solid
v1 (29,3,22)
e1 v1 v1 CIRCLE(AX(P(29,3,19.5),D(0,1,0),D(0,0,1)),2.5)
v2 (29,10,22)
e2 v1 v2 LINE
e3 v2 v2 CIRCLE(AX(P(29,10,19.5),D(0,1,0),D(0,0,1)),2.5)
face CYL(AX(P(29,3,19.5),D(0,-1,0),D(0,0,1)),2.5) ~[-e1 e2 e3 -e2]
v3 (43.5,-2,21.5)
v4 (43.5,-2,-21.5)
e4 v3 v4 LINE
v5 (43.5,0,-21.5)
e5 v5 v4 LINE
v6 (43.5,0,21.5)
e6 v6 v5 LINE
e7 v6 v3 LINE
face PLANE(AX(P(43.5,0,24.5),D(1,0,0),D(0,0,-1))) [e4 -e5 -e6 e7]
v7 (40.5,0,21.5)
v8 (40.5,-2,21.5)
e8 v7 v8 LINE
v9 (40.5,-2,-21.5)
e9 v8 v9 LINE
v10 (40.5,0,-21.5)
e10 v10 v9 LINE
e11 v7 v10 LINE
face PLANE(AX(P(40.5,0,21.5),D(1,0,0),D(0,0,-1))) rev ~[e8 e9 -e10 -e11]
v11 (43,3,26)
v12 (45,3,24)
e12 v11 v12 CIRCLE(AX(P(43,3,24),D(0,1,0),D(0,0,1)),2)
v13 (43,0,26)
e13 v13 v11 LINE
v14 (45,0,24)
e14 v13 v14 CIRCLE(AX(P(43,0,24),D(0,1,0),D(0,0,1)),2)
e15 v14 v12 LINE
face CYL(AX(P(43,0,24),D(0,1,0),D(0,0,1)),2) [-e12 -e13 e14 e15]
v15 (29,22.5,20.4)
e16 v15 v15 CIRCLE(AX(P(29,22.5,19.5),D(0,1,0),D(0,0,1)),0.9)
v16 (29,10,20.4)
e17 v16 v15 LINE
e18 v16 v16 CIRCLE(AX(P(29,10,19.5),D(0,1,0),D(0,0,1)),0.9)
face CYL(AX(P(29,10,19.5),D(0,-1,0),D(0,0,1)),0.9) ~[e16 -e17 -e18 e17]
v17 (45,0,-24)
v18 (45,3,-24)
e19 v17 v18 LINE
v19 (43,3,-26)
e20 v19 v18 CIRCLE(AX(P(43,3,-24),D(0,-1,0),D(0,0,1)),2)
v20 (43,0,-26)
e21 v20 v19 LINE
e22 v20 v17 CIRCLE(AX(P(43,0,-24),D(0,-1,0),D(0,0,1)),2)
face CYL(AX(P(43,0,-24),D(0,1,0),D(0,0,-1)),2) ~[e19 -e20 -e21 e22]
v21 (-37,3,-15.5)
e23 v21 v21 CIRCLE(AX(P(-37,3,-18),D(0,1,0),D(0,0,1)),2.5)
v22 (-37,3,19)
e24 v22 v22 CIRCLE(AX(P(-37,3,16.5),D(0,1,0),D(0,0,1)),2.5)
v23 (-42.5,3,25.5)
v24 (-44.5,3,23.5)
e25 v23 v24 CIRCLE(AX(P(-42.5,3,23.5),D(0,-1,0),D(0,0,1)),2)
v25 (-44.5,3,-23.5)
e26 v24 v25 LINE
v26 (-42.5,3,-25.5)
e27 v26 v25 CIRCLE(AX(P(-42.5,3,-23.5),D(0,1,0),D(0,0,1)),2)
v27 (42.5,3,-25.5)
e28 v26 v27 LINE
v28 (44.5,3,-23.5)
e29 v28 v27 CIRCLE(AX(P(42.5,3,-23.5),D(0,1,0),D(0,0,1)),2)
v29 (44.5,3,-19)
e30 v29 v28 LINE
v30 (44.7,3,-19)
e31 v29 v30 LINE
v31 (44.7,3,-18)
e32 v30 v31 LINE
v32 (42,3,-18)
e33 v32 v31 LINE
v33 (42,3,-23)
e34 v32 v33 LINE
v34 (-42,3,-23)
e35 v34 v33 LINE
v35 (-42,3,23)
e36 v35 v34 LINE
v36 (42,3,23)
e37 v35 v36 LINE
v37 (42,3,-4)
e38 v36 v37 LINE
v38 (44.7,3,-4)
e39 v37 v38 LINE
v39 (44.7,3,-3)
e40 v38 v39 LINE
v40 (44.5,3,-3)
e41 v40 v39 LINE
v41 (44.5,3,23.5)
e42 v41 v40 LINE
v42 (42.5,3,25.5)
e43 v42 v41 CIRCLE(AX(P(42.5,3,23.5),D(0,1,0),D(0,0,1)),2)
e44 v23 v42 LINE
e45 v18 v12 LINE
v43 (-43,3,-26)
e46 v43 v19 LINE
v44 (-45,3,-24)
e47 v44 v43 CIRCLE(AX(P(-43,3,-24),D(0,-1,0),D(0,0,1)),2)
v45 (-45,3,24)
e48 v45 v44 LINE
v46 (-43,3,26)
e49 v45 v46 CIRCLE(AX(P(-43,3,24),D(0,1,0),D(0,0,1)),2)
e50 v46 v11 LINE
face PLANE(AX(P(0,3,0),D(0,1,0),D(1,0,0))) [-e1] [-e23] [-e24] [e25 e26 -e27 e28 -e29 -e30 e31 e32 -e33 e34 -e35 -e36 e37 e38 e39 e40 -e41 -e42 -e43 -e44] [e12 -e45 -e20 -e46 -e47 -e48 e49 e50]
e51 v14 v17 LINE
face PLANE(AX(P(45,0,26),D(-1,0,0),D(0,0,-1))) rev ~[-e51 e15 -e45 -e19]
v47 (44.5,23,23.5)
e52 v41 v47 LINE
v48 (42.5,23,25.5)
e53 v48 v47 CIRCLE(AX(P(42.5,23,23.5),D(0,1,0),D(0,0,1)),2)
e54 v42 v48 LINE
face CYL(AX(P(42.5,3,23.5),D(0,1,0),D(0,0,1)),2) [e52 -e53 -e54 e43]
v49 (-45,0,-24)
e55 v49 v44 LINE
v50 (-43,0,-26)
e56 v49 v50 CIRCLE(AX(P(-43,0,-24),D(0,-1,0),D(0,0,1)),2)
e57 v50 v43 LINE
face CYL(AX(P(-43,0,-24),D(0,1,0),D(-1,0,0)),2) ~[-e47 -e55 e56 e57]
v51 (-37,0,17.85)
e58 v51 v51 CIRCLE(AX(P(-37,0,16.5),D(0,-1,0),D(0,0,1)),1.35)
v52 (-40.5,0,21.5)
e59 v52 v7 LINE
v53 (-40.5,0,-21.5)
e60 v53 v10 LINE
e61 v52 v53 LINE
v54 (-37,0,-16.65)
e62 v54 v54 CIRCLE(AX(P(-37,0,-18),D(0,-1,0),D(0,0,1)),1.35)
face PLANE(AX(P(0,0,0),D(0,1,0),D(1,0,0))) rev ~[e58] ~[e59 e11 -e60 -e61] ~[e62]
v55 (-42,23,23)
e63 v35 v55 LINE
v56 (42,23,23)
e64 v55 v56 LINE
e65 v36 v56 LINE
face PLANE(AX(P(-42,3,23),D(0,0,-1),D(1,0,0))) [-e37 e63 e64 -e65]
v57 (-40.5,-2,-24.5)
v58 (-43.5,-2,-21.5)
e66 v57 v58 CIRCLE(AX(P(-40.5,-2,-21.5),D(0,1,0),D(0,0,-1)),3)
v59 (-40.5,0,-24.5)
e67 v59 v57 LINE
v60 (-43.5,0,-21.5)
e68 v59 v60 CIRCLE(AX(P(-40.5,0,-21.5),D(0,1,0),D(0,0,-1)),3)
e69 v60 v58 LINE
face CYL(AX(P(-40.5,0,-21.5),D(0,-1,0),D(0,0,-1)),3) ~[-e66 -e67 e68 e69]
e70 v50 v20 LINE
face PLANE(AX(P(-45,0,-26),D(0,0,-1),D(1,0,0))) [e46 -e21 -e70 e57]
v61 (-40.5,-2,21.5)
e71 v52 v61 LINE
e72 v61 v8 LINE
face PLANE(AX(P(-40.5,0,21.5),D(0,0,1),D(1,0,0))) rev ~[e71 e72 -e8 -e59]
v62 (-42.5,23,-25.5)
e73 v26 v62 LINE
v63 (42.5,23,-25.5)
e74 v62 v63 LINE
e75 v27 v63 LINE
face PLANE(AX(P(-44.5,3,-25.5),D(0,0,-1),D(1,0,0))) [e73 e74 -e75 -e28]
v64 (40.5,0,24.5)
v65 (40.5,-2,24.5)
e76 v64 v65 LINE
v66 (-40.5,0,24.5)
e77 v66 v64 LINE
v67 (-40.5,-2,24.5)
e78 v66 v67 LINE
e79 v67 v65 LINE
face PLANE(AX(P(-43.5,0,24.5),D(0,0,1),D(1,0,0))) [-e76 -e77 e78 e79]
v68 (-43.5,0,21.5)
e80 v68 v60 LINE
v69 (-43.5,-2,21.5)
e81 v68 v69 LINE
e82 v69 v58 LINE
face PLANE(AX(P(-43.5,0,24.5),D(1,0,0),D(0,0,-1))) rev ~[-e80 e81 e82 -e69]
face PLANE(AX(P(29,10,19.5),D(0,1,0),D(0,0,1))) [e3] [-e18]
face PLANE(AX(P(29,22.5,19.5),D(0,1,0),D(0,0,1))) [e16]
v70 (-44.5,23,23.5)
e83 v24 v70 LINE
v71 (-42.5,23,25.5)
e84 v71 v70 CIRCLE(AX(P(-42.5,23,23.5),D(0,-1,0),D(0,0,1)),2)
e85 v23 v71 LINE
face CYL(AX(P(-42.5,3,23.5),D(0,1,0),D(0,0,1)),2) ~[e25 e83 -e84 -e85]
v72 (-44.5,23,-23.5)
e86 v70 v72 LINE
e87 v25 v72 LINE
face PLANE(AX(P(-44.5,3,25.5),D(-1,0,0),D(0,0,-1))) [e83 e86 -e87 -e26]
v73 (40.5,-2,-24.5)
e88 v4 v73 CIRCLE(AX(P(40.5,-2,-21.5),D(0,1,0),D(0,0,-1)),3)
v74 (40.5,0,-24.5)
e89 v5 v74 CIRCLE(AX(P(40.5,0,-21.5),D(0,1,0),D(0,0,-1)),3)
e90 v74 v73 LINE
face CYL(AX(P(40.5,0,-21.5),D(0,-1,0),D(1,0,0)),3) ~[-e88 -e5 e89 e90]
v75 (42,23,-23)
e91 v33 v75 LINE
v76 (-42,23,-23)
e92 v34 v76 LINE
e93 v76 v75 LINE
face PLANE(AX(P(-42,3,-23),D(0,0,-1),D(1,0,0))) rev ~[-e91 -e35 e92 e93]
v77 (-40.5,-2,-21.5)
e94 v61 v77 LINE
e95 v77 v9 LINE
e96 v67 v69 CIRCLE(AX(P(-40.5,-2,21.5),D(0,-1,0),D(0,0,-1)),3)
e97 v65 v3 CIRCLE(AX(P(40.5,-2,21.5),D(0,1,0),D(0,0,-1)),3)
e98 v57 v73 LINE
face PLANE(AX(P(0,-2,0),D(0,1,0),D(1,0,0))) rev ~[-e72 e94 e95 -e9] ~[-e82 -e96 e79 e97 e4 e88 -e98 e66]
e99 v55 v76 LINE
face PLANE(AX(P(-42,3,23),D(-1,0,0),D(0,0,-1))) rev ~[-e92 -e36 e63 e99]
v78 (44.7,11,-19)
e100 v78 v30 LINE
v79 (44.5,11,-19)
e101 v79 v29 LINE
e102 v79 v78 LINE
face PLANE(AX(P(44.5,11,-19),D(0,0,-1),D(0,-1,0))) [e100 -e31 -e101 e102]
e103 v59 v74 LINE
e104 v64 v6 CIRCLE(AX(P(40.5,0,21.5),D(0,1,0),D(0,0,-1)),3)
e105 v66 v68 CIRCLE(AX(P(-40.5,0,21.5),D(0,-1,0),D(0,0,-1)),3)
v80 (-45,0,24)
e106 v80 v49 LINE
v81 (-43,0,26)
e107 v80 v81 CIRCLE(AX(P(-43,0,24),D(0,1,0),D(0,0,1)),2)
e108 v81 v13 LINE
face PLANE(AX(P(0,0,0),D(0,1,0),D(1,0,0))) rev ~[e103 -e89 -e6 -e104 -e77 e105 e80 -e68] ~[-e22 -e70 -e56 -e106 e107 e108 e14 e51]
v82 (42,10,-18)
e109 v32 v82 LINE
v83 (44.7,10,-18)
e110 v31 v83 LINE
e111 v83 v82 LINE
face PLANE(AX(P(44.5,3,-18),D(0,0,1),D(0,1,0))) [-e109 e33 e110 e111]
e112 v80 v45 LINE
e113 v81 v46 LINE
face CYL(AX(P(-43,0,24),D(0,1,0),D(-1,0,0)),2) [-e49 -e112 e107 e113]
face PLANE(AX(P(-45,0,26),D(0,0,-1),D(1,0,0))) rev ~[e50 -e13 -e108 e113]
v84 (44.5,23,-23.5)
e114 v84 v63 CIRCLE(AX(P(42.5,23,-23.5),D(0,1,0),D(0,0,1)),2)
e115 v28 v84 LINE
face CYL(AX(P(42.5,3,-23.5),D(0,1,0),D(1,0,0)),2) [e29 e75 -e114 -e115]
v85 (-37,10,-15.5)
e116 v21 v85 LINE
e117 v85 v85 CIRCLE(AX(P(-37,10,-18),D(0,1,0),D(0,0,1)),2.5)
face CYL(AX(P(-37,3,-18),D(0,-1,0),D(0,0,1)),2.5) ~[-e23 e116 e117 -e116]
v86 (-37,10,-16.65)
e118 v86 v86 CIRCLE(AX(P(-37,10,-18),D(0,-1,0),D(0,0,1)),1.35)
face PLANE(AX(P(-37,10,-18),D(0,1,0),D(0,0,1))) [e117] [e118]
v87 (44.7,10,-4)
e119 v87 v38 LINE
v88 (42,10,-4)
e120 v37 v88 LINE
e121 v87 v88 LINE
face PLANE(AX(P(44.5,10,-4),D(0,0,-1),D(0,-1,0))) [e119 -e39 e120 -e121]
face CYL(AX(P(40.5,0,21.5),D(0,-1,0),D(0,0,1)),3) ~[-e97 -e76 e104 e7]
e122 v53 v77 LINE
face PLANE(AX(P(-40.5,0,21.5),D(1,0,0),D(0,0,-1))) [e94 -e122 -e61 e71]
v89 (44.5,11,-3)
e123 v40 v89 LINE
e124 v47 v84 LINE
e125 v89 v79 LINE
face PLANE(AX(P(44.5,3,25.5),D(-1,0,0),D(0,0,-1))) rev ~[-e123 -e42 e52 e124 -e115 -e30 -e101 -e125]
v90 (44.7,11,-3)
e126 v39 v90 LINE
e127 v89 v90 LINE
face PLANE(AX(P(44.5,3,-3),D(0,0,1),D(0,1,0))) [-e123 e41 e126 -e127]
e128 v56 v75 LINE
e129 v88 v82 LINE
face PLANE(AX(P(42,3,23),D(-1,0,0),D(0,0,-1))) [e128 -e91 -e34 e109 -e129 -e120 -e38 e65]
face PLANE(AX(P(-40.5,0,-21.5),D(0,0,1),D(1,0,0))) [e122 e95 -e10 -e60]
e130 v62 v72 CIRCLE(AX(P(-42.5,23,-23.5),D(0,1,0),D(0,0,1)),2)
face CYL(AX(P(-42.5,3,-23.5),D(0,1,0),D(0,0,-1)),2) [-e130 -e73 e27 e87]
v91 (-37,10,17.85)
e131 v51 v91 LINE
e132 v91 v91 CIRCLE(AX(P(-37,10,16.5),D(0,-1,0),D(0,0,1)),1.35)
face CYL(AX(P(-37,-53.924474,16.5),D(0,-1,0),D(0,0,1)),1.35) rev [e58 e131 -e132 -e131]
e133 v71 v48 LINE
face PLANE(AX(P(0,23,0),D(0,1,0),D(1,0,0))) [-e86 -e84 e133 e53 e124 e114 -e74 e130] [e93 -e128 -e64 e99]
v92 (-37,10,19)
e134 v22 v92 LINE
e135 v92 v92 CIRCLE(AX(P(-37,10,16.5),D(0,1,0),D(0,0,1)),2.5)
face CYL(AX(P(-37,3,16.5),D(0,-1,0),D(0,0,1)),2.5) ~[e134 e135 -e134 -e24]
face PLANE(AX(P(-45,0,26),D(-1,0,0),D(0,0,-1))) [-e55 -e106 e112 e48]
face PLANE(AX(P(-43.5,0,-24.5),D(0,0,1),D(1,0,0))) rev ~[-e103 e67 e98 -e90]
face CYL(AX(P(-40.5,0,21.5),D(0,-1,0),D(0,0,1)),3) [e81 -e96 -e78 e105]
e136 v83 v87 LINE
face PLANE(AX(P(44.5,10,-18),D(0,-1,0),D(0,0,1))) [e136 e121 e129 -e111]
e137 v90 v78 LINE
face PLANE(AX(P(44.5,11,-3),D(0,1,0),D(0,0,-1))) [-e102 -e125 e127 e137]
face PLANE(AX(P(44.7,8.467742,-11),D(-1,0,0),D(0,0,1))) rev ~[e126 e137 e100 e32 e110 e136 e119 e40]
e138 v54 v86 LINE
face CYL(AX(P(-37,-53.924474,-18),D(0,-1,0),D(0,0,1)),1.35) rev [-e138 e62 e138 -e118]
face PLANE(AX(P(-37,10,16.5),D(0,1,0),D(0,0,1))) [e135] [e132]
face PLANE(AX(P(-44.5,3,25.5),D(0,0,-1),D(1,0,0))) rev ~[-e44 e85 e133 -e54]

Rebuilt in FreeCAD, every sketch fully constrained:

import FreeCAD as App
import Part
import Sketcher
from FreeCAD import Vector
Q = App.Units.Quantity


def edges_at(feature, points):
    """Names of the edges that pass closest to the given points."""
    edges = feature.Shape.Edges
    near = lambda p: min(range(len(edges)), key=lambda i: edges[i].distToShape(Part.Vertex(*p))[0])
    return sorted({f"Edge{near(p) + 1}" for p in points})


def add_polygon(sketch, points):
    """Adds a closed chain of lines whose ends are joined by coincident constraints."""
    first, n = sketch.GeometryCount, len(points)
    for a, b in zip(points, points[1:] + points[:1]):
        sketch.addGeometry(Part.LineSegment(App.Vector(*a, 0), App.Vector(*b, 0)), False)
    for i in range(n):
        sketch.addConstraint(Sketcher.Constraint("Coincident", first + i, 2, first + (i + 1) % n, 1))

doc = App.newDocument("Part")
body = doc.addObject("PartDesign::Body", "Body")

sketch1 = body.newObject("Sketcher::SketchObject", "Sketch")
sketch1.AttachmentSupport = (doc.getObject("XZ_Plane"), [""])
sketch1.MapMode = "FlatFace"
add_polygon(sketch1, [(-45, -26), (-45, 26), (45, 26), (45, -26)])
sketch1.addConstraint([
    Sketcher.Constraint("Vertical", 0),
    Sketcher.Constraint("Horizontal", 1),
    Sketcher.Constraint("Vertical", 2),
    Sketcher.Constraint("Horizontal", 3),
    Sketcher.Constraint("Symmetric", 0, 2, 2, 2, -1, 1),
    Sketcher.Constraint("DistanceX", 1, 1, 1, 2, Q("90 mm")),
    Sketcher.Constraint("DistanceY", 0, 1, 0, 2, Q("52 mm")),
])
pad1 = body.newObject("PartDesign::Pad", "Pad")
pad1.Profile = sketch1
pad1.Length = 3
pad1.Reversed = True

sketch2 = body.newObject("Sketcher::SketchObject", "Sketch001")
sketch2.AttachmentSupport = (doc.getObject("XZ_Plane"), [""])
sketch2.MapMode = "FlatFace"
sketch2.AttachmentOffset = App.Placement(Vector(0, 0, -3), App.Rotation())
sketch2.addGeometry([
    Part.Circle(Vector(29, 19.5, 0), Vector(0, 0, 1), 2.5),
    Part.Circle(Vector(-37, -18, 0), Vector(0, 0, 1), 2.5),
    Part.Circle(Vector(-37, 16.5, 0), Vector(0, 0, 1), 2.5),
], False)
sketch2.addConstraint([
    Sketcher.Constraint("Equal", 0, 1),
    Sketcher.Constraint("Equal", 1, 2),
    Sketcher.Constraint("Vertical", 1, 3, 2, 3),
    Sketcher.Constraint("Diameter", 0, Q("5 mm")),
    Sketcher.Constraint("DistanceX", -1, 1, 0, 3, Q("29 mm")),
    Sketcher.Constraint("DistanceX", 1, 3, -1, 1, Q("37 mm")),
    Sketcher.Constraint("DistanceY", 1, 3, -1, 1, Q("18 mm")),
    Sketcher.Constraint("DistanceY", 2, 3, 0, 3, Q("3 mm")),
    Sketcher.Constraint("DistanceY", -1, 1, 0, 3, Q("19.5 mm")),
])
pad2 = body.newObject("PartDesign::Pad", "Pad001")
pad2.Profile = sketch2
pad2.Length = 7
pad2.Reversed = True

sketch3 = body.newObject("Sketcher::SketchObject", "Sketch002")
sketch3.AttachmentSupport = (doc.getObject("XZ_Plane"), [""])
sketch3.MapMode = "FlatFace"
sketch3.AttachmentOffset = App.Placement(Vector(0, 0, -10), App.Rotation())
sketch3.addGeometry([
    Part.Circle(Vector(-37, -18, 0), Vector(0, 0, 1), 1.4),
    Part.Circle(Vector(-37, 16.5, 0), Vector(0, 0, 1), 1.4),
], False)
sketch3.addConstraint([
    Sketcher.Constraint("Equal", 0, 1),
    Sketcher.Constraint("Vertical", 0, 3, 1, 3),
    Sketcher.Constraint("Diameter", 0, Q("2.7 mm")),
    Sketcher.Constraint("DistanceX", 0, 3, -1, 1, Q("37 mm")),
    Sketcher.Constraint("DistanceY", 0, 3, -1, 1, Q("18 mm")),
    Sketcher.Constraint("DistanceY", -1, 1, 1, 3, Q("16.5 mm")),
])
pocket1 = body.newObject("PartDesign::Pocket", "Pocket")
pocket1.Profile = sketch3
pocket1.Type = "ThroughAll"
pocket1.Midplane = True

sketch4 = body.newObject("Sketcher::SketchObject", "Sketch003")
sketch4.AttachmentSupport = (doc.getObject("XZ_Plane"), [""])
sketch4.MapMode = "FlatFace"
sketch4.AttachmentOffset = App.Placement(Vector(0, 0, -10), App.Rotation())
sketch4.addGeometry(Part.Circle(Vector(29, 19.5, 0), Vector(0, 0, 1), 0.9), False)
sketch4.addConstraint([
    Sketcher.Constraint("Diameter", 0, Q("1.8 mm")),
    Sketcher.Constraint("DistanceX", -1, 1, 0, 3, Q("29 mm")),
    Sketcher.Constraint("DistanceY", -1, 1, 0, 3, Q("19.5 mm")),
])
pad3 = body.newObject("PartDesign::Pad", "Pad002")
pad3.Profile = sketch4
pad3.Length = 12.5
pad3.Reversed = True

sketch5 = body.newObject("Sketcher::SketchObject", "Sketch004")
sketch5.AttachmentSupport = (doc.getObject("XZ_Plane"), [""])
sketch5.MapMode = "FlatFace"
add_polygon(sketch5, [(-44, -24), (-44, 24), (44, 24), (44, -24)])
add_polygon(sketch5, [(40, 22), (-40, 22), (-40, -22), (40, -22)])
sketch5.addConstraint([
    Sketcher.Constraint("Vertical", 0),
    Sketcher.Constraint("Horizontal", 1),
    Sketcher.Constraint("Vertical", 2),
    Sketcher.Constraint("Horizontal", 3),
    Sketcher.Constraint("Horizontal", 4),
    Sketcher.Constraint("Vertical", 5),
    Sketcher.Constraint("Horizontal", 6),
    Sketcher.Constraint("Vertical", 7),
    Sketcher.Constraint("Symmetric", 0, 2, 2, 2, -1, 1),
    Sketcher.Constraint("Symmetric", 4, 2, 6, 2, -1, 1),
    Sketcher.Constraint("DistanceX", 1, 1, 1, 2, Q("87 mm")),
    Sketcher.Constraint("DistanceX", 4, 2, 4, 1, Q("81 mm")),
    Sketcher.Constraint("DistanceY", 0, 1, 0, 2, Q("49 mm")),
    Sketcher.Constraint("DistanceY", 5, 2, 5, 1, Q("43 mm")),
])
pad4 = body.newObject("PartDesign::Pad", "Pad003")
pad4.Profile = sketch5
pad4.Length = 2
doc.recompute()

fillet = body.newObject("PartDesign::Fillet", "Fillet")
fillet.Base = (pad4, edges_at(pad4, [
    (43.5, -1, -24.5),
    (43.5, -1, 24.5),
    (-43.5, -1, 24.5),
    (-43.5, -1, -24.5),
]))
fillet.Radius = 3

sketch6 = body.newObject("Sketcher::SketchObject", "Sketch005")
sketch6.AttachmentSupport = (doc.getObject("XZ_Plane"), [""])
sketch6.MapMode = "FlatFace"
sketch6.AttachmentOffset = App.Placement(Vector(0, 0, -3), App.Rotation())
add_polygon(sketch6, [(-44, -26), (-44, 26), (44, 26), (44, -26)])
add_polygon(sketch6, [(42, 23), (-42, 23), (-42, -23), (42, -23)])
sketch6.addConstraint([
    Sketcher.Constraint("Vertical", 0),
    Sketcher.Constraint("Horizontal", 1),
    Sketcher.Constraint("Vertical", 2),
    Sketcher.Constraint("Horizontal", 3),
    Sketcher.Constraint("Horizontal", 4),
    Sketcher.Constraint("Vertical", 5),
    Sketcher.Constraint("Horizontal", 6),
    Sketcher.Constraint("Vertical", 7),
    Sketcher.Constraint("Symmetric", 0, 2, 2, 2, -1, 1),
    Sketcher.Constraint("Symmetric", 4, 2, 6, 2, -1, 1),
    Sketcher.Constraint("DistanceX", 1, 1, 1, 2, Q("89 mm")),
    Sketcher.Constraint("DistanceX", 4, 2, 4, 1, Q("84 mm")),
    Sketcher.Constraint("DistanceY", 0, 1, 0, 2, Q("51 mm")),
    Sketcher.Constraint("DistanceY", 5, 2, 5, 1, Q("46 mm")),
])
pad5 = body.newObject("PartDesign::Pad", "Pad004")
pad5.Profile = sketch6
pad5.Length = 20
pad5.Reversed = True
doc.recompute()

fillet2 = body.newObject("PartDesign::Fillet", "Fillet001")
fillet2.Base = (pad5, edges_at(pad5, [
    (44.5, 13, -25.5),
    (-44.5, 13, -25.5),
    (-44.5, 13, 25.5),
    (44.5, 13, 25.5),
    (-45, 1.5, -26),
    (45, 1.5, -26),
    (45, 1.5, 26),
    (-45, 1.5, 26),
]))
fillet2.Radius = 2

sketch7 = body.newObject("Sketcher::SketchObject", "Sketch006")
sketch7.AttachmentSupport = (doc.getObject("YZ_Plane"), [""])
sketch7.MapMode = "FlatFace"
sketch7.AttachmentOffset = App.Placement(Vector(0, 0, 42), App.Rotation())
add_polygon(sketch7, [(10, -4), (3, -4), (3, -18), (10, -18)])
sketch7.addConstraint([
    Sketcher.Constraint("Horizontal", 0),
    Sketcher.Constraint("Vertical", 1),
    Sketcher.Constraint("Horizontal", 2),
    Sketcher.Constraint("Vertical", 3),
    Sketcher.Constraint("DistanceX", 0, 2, 0, 1, Q("7 mm")),
    Sketcher.Constraint("DistanceY", 1, 2, 1, 1, Q("14 mm")),
    Sketcher.Constraint("DistanceX", -1, 1, 0, 2, Q("3 mm")),
    Sketcher.Constraint("DistanceY", 0, 2, -1, 1, Q("4 mm")),
])
pocket2 = body.newObject("PartDesign::Pocket", "Pocket001")
pocket2.Profile = sketch7
pocket2.Length = 15
pocket2.Reversed = True

sketch8 = body.newObject("Sketcher::SketchObject", "Sketch007")
sketch8.AttachmentSupport = (doc.getObject("YZ_Plane"), [""])
sketch8.MapMode = "FlatFace"
sketch8.AttachmentOffset = App.Placement(Vector(0, 0, 44.5), App.Rotation())
add_polygon(sketch8, [(10, -18), (3, -18), (3, -19), (11, -19), (11, -3), (3, -3), (3, -4), (10, -4)])
sketch8.addConstraint([
    Sketcher.Constraint("Horizontal", 0),
    Sketcher.Constraint("Vertical", 1),
    Sketcher.Constraint("Horizontal", 2),
    Sketcher.Constraint("Vertical", 3),
    Sketcher.Constraint("Horizontal", 4),
    Sketcher.Constraint("Vertical", 5),
    Sketcher.Constraint("Horizontal", 6),
    Sketcher.Constraint("Vertical", 7),
    Sketcher.Constraint("Vertical", 1, 2, 4, 2),
    Sketcher.Constraint("Equal", 1, 5),
    Sketcher.Constraint("DistanceX", 0, 2, 0, 1, Q("7 mm")),
    Sketcher.Constraint("DistanceX", 2, 1, 2, 2, Q("8 mm")),
    Sketcher.Constraint("DistanceY", 1, 2, 1, 1, Q("1 mm")),
    Sketcher.Constraint("DistanceY", 3, 1, 3, 2, Q("16 mm")),
    Sketcher.Constraint("DistanceX", -1, 1, 0, 2, Q("3 mm")),
    Sketcher.Constraint("DistanceY", 0, 2, -1, 1, Q("18 mm")),
])
pad6 = body.newObject("PartDesign::Pad", "Pad005")
pad6.Profile = sketch8
pad6.Length = 0.2

doc.recompute()
